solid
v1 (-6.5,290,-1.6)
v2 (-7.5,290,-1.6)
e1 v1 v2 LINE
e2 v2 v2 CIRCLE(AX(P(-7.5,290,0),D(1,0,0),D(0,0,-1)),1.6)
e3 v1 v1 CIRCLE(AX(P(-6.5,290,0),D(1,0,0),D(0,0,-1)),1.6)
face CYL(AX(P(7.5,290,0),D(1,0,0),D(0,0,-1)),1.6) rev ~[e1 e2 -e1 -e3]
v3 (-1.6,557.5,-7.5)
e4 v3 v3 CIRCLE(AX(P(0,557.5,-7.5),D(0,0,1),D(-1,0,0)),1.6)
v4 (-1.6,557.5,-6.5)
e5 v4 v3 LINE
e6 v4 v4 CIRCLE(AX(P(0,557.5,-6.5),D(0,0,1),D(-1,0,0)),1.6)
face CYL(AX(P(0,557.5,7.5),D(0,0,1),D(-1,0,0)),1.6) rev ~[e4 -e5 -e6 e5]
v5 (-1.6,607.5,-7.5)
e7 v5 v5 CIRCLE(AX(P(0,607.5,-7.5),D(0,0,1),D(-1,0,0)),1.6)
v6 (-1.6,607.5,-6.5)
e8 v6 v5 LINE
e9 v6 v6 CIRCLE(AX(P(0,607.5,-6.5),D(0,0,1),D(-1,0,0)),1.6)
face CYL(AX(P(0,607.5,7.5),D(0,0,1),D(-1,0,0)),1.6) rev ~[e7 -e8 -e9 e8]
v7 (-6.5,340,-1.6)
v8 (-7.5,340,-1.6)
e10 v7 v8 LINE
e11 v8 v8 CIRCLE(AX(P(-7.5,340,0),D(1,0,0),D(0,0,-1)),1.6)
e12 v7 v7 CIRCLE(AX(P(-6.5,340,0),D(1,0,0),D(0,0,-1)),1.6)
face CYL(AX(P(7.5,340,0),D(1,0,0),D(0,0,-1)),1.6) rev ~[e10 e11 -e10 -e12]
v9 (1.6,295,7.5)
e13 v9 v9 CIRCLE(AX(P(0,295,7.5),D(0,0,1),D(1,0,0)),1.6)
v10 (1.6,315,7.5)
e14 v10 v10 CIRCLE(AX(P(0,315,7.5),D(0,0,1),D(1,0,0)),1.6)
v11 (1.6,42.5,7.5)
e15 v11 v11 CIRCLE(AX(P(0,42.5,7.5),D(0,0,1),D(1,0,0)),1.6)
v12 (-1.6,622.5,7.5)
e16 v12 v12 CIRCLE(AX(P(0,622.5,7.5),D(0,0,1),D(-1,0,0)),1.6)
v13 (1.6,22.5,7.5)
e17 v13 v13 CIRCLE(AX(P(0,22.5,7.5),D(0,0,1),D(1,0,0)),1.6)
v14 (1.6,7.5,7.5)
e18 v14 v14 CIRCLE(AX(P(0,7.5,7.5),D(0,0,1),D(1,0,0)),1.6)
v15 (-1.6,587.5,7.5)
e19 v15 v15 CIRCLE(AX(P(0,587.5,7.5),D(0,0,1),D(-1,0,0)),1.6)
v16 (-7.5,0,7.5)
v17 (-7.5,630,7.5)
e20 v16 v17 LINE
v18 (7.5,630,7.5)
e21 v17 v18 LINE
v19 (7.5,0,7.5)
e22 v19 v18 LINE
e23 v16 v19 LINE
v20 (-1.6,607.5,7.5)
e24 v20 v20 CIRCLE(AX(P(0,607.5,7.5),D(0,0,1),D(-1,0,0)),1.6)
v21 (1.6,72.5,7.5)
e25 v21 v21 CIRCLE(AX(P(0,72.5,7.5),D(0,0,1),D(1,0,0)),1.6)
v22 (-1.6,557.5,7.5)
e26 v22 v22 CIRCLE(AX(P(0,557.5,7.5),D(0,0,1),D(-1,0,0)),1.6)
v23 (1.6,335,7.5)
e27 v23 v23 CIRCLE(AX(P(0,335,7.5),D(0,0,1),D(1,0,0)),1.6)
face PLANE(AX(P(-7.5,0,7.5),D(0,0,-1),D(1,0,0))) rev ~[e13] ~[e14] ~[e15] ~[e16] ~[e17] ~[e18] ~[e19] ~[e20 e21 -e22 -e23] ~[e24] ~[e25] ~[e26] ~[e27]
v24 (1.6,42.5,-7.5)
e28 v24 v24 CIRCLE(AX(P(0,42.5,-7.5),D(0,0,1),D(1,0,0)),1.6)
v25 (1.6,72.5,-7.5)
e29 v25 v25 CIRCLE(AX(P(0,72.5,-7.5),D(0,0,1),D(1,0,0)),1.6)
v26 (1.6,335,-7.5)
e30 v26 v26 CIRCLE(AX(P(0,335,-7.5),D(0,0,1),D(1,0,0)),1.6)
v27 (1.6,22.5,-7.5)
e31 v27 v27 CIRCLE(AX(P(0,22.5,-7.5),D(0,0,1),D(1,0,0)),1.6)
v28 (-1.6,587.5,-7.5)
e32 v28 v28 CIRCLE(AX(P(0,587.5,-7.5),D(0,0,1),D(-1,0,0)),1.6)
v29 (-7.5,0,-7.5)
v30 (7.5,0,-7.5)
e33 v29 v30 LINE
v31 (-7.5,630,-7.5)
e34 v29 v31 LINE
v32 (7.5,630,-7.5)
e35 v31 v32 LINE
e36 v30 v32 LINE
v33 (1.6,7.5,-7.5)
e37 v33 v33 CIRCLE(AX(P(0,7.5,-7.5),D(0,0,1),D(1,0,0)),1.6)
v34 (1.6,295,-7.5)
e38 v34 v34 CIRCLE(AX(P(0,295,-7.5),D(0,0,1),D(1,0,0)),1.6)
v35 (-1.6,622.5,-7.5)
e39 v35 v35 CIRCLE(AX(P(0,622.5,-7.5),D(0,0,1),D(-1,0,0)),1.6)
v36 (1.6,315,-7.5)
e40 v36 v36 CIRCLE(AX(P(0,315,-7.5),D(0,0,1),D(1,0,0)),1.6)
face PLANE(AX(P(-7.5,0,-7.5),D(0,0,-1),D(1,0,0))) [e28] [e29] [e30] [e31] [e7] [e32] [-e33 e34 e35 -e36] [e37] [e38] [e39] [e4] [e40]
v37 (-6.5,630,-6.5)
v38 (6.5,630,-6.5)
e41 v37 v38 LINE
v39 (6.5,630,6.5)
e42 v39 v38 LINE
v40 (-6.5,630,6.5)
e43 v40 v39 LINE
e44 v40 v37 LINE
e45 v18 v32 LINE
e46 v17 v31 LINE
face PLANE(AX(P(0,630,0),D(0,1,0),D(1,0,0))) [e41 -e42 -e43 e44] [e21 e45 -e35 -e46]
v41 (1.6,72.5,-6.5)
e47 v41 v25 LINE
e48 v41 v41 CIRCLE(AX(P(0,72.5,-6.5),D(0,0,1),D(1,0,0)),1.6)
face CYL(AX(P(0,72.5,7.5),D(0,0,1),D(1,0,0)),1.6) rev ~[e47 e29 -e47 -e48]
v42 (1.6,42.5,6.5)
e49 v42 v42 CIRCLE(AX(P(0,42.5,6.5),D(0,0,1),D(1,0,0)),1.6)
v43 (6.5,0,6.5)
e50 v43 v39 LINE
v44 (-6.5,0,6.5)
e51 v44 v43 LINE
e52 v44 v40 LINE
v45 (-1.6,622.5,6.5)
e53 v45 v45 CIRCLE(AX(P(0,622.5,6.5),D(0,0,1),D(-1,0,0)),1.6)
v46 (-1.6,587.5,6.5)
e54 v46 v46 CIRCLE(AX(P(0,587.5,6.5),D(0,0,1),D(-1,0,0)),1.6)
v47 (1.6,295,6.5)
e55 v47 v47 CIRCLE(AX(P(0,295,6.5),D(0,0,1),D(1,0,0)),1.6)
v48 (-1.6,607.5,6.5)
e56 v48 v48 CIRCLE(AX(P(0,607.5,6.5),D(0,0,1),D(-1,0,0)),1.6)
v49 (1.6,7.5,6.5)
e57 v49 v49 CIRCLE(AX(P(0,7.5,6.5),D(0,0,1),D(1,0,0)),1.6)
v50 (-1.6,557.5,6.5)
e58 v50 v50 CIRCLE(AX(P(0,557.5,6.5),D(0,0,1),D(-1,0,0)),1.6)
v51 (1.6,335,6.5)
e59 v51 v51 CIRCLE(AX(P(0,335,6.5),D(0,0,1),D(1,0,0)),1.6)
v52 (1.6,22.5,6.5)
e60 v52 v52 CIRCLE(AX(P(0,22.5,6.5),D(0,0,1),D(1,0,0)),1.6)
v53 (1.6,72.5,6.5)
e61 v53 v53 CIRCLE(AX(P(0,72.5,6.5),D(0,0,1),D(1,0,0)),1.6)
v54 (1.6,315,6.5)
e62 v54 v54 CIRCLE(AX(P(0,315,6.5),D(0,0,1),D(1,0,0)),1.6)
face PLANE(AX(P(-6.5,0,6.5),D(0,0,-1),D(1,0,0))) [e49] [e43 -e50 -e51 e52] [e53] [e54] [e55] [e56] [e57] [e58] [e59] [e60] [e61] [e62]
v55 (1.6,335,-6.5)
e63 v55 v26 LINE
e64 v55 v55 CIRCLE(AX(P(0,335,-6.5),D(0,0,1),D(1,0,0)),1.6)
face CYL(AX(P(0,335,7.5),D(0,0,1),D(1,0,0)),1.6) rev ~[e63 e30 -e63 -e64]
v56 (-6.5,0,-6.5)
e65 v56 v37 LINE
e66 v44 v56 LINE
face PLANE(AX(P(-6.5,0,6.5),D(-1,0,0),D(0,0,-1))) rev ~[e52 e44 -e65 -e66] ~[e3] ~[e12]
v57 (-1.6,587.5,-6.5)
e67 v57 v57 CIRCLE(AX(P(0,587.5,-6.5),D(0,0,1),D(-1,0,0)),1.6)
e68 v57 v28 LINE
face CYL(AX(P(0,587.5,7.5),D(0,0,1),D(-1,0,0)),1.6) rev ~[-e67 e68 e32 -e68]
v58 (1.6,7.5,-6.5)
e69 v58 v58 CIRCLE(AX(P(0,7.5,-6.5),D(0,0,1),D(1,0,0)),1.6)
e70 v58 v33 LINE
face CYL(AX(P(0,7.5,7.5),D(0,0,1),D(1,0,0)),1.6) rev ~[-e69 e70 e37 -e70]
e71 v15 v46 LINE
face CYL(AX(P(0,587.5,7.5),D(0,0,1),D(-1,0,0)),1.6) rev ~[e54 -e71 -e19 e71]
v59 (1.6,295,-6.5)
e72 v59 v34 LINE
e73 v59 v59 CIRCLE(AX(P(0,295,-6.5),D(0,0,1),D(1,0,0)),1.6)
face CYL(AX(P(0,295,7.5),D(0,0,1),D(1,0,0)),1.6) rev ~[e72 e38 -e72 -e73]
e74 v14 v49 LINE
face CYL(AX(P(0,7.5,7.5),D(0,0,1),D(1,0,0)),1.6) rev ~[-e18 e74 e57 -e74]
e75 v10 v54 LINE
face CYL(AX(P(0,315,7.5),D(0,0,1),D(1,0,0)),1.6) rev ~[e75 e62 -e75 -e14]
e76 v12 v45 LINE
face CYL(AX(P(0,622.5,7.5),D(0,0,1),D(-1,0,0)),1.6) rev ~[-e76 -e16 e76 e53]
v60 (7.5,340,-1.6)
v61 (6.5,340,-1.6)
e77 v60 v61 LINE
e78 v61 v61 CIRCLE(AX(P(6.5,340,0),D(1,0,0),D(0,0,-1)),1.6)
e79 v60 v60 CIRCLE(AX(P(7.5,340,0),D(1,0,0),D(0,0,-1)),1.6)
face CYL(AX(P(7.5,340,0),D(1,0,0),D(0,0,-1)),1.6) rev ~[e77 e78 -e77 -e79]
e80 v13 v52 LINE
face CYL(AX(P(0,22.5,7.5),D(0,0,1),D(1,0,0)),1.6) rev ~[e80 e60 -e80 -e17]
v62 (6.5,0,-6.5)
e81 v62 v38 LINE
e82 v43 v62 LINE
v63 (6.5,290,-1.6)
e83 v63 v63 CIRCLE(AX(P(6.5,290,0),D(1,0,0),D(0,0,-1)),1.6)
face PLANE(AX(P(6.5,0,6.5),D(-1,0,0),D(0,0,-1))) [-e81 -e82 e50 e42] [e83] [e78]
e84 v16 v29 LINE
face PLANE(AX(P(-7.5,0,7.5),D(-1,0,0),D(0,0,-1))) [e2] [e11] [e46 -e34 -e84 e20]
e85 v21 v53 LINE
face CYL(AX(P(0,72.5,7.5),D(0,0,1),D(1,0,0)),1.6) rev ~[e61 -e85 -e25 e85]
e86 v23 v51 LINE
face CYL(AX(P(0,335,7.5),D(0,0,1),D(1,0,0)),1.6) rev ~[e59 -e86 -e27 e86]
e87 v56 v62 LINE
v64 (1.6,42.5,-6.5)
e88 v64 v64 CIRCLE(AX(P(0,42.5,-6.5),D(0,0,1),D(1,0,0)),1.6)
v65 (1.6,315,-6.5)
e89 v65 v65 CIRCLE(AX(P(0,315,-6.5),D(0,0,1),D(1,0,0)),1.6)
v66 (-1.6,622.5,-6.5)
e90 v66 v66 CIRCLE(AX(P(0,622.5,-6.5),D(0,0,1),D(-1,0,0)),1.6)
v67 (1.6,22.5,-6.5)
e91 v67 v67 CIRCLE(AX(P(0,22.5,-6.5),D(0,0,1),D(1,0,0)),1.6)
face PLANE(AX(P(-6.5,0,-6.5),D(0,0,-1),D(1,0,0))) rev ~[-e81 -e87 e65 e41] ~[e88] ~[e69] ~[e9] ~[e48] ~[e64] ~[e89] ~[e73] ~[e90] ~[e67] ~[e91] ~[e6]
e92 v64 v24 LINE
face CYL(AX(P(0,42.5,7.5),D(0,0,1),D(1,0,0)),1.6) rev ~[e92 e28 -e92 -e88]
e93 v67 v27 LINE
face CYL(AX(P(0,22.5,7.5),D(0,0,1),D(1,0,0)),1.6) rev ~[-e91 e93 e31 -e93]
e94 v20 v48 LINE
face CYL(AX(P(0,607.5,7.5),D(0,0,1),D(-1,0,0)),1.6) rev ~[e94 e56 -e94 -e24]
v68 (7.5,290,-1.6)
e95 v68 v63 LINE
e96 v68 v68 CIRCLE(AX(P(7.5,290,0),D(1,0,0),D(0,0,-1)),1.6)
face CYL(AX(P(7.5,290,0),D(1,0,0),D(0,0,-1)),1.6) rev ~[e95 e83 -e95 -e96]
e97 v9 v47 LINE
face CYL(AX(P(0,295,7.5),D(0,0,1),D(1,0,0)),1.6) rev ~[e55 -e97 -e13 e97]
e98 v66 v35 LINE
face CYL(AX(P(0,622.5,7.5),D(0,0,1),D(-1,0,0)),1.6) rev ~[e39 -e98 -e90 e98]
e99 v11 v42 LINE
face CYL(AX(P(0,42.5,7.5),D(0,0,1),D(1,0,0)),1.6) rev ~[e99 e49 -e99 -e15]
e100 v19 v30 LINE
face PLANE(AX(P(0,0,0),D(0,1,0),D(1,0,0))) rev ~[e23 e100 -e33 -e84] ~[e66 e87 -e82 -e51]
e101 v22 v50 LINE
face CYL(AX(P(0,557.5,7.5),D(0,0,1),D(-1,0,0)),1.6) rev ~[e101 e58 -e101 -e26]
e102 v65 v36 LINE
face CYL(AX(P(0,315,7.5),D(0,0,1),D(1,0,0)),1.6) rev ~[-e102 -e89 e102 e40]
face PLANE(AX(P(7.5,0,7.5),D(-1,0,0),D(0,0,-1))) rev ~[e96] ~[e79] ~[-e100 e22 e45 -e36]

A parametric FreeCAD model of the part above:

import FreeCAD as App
import Part
import Sketcher

V = App.Vector


def add_polygon(sketch, points):
    """Adds a closed chain of lines whose ends are joined by coincident constraints."""
    first, n = sketch.GeometryCount, len(points)
    for a, b in zip(points, points[1:] + points[:1]):
        sketch.addGeometry(Part.LineSegment(App.Vector(*a, 0), App.Vector(*b, 0)), False)
    for i in range(n):
        sketch.addConstraint(Sketcher.Constraint("Coincident", first + i, 2, first + (i + 1) % n, 1))

doc = App.newDocument("Part")
body = doc.addObject("PartDesign::Body", "Body")

# Sketch on XZ plane
sketch1 = body.newObject("Sketcher::SketchObject", "Sketch")
sketch1.AttachmentSupport = (doc.getObject("XZ_Plane"), [""])
sketch1.MapMode = "FlatFace"
add_polygon(sketch1, [(-8, -8), (-8, 8), (8, 8), (8, -8)])  # lines 0-3
add_polygon(sketch1, [(6, 6), (-6, 6), (-6, -6), (6, -6)])  # lines 4-7
sketch1.addConstraint([
    Sketcher.Constraint("Vertical", 0),
    Sketcher.Constraint("Horizontal", 1),
    Sketcher.Constraint("Vertical", 2),
    Sketcher.Constraint("Horizontal", 3),
    Sketcher.Constraint("Horizontal", 4),
    Sketcher.Constraint("Vertical", 5),
    Sketcher.Constraint("Horizontal", 6),
    Sketcher.Constraint("Vertical", 7),
    Sketcher.Constraint("Symmetric", 0, 2, 2, 2, -1, 1),
    Sketcher.Constraint("Symmetric", 4, 2, 6, 2, -1, 1),
    Sketcher.Constraint("Equal", 3, 0),
    Sketcher.Constraint("Equal", 6, 5),
    Sketcher.Constraint("DistanceX", 1, 1, 1, 2, 15.0),
    Sketcher.Constraint("DistanceX", 4, 2, 4, 1, 13.0),
])
pad1 = body.newObject("PartDesign::Pad", "Pad")
pad1.Profile = sketch1
pad1.Length = 630
pad1.Reversed = True

# Sketch on XY plane
sketch2 = body.newObject("Sketcher::SketchObject", "Sketch001")
sketch2.AttachmentSupport = (doc.getObject("XY_Plane"), [""])
sketch2.MapMode = "FlatFace"
sketch2.AttachmentOffset = App.Placement(V(0, 0, 7.5), App.Rotation())
sketch2.addGeometry([
    Part.Circle(V(0, 7.5, 0), V(0, 0, 1), 1.6),  # 0
    Part.Circle(V(0, 22.5, 0), V(0, 0, 1), 1.6),  # 1
    Part.Circle(V(0, 42.5, 0), V(0, 0, 1), 1.6),  # 2
    Part.Circle(V(0, 72.5, 0), V(0, 0, 1), 1.6),  # 3
    Part.Circle(V(0, 315, 0), V(0, 0, 1), 1.6),  # 4
    Part.Circle(V(0, 295, 0), V(0, 0, 1), 1.6),  # 5
    Part.Circle(V(0, 335, 0), V(0, 0, 1), 1.6),  # 6
    Part.Circle(V(0, 557.5, 0), V(0, 0, 1), 1.6),  # 7
    Part.Circle(V(0, 587.5, 0), V(0, 0, 1), 1.6),  # 8
    Part.Circle(V(0, 607.5, 0), V(0, 0, 1), 1.6),  # 9
    Part.Circle(V(0, 622.5, 0), V(0, 0, 1), 1.6),  # 10
], False)
sketch2.addConstraint([
    Sketcher.Constraint("Equal", 0, 1),
    Sketcher.Constraint("Equal", 1, 2),
    Sketcher.Constraint("Equal", 2, 3),
    Sketcher.Constraint("Equal", 3, 4),
    Sketcher.Constraint("Equal", 4, 5),
    Sketcher.Constraint("Equal", 5, 6),
    Sketcher.Constraint("Equal", 6, 7),
    Sketcher.Constraint("Equal", 7, 8),
    Sketcher.Constraint("Equal", 8, 9),
    Sketcher.Constraint("Equal", 9, 10),
    Sketcher.Constraint("PointOnObject", 0, 3, -2),
    Sketcher.Constraint("PointOnObject", 1, 3, -2),
    Sketcher.Constraint("PointOnObject", 2, 3, -2),
    Sketcher.Constraint("PointOnObject", 3, 3, -2),
    Sketcher.Constraint("PointOnObject", 4, 3, -2),
    Sketcher.Constraint("PointOnObject", 5, 3, -2),
    Sketcher.Constraint("PointOnObject", 6, 3, -2),
    Sketcher.Constraint("PointOnObject", 7, 3, -2),
    Sketcher.Constraint("PointOnObject", 8, 3, -2),
    Sketcher.Constraint("PointOnObject", 9, 3, -2),
    Sketcher.Constraint("PointOnObject", 10, 3, -2),
    Sketcher.Constraint("Diameter", 0, 3.2),
    Sketcher.Constraint("DistanceY", -1, 1, 4, 3, 315.0),
    Sketcher.Constraint("DistanceY", -1, 1, 5, 3, 295.0),
    Sketcher.Constraint("DistanceY", -1, 1, 6, 3, 335.0),
    Sketcher.Constraint("DistanceY", 0, 3, 1, 3, 15.0),
    Sketcher.Constraint("DistanceY", 1, 3, 2, 3, 20.0),
    Sketcher.Constraint("DistanceY", 2, 3, 3, 3, 30.0),
    Sketcher.Constraint("DistanceY", 3, 3, 7, 3, 485.0),
    Sketcher.Constraint("DistanceY", 7, 3, 8, 3, 30.0),
    Sketcher.Constraint("DistanceY", 8, 3, 9, 3, 20.0),
    Sketcher.Constraint("DistanceY", 9, 3, 10, 3, 15.0),
    Sketcher.Constraint("DistanceY", -1, 1, 0, 3, 7.5),
])
pocket1 = body.newObject("PartDesign::Pocket", "Pocket")
pocket1.Profile = sketch2
pocket1.Type = "ThroughAll"

# Sketch on YZ plane
sketch3 = body.newObject("Sketcher::SketchObject", "Sketch002")
sketch3.AttachmentSupport = (doc.getObject("YZ_Plane"), [""])
sketch3.MapMode = "FlatFace"
sketch3.AttachmentOffset = App.Placement(V(0, 0, 7.5), App.Rotation())
sketch3.addGeometry([
    Part.Circle(V(290, 0, 0), V(0, 0, 1), 1.6),
    Part.Circle(V(340, 0, 0), V(0, 0, 1), 1.6),
], False)
sketch3.addConstraint([
    Sketcher.Constraint("Equal", 0, 1),
    Sketcher.Constraint("PointOnObject", 0, 3, -1),
    Sketcher.Constraint("PointOnObject", 1, 3, -1),
    Sketcher.Constraint("Diameter", 0, 3.2),
    Sketcher.Constraint("DistanceX", -1, 1, 0, 3, 290.0),
    Sketcher.Constraint("DistanceX", -1, 1, 1, 3, 340.0),
])
pocket2 = body.newObject("PartDesign::Pocket", "Pocket001")
pocket2.Profile = sketch3
pocket2.Type = "ThroughAll"

doc.recompute()
